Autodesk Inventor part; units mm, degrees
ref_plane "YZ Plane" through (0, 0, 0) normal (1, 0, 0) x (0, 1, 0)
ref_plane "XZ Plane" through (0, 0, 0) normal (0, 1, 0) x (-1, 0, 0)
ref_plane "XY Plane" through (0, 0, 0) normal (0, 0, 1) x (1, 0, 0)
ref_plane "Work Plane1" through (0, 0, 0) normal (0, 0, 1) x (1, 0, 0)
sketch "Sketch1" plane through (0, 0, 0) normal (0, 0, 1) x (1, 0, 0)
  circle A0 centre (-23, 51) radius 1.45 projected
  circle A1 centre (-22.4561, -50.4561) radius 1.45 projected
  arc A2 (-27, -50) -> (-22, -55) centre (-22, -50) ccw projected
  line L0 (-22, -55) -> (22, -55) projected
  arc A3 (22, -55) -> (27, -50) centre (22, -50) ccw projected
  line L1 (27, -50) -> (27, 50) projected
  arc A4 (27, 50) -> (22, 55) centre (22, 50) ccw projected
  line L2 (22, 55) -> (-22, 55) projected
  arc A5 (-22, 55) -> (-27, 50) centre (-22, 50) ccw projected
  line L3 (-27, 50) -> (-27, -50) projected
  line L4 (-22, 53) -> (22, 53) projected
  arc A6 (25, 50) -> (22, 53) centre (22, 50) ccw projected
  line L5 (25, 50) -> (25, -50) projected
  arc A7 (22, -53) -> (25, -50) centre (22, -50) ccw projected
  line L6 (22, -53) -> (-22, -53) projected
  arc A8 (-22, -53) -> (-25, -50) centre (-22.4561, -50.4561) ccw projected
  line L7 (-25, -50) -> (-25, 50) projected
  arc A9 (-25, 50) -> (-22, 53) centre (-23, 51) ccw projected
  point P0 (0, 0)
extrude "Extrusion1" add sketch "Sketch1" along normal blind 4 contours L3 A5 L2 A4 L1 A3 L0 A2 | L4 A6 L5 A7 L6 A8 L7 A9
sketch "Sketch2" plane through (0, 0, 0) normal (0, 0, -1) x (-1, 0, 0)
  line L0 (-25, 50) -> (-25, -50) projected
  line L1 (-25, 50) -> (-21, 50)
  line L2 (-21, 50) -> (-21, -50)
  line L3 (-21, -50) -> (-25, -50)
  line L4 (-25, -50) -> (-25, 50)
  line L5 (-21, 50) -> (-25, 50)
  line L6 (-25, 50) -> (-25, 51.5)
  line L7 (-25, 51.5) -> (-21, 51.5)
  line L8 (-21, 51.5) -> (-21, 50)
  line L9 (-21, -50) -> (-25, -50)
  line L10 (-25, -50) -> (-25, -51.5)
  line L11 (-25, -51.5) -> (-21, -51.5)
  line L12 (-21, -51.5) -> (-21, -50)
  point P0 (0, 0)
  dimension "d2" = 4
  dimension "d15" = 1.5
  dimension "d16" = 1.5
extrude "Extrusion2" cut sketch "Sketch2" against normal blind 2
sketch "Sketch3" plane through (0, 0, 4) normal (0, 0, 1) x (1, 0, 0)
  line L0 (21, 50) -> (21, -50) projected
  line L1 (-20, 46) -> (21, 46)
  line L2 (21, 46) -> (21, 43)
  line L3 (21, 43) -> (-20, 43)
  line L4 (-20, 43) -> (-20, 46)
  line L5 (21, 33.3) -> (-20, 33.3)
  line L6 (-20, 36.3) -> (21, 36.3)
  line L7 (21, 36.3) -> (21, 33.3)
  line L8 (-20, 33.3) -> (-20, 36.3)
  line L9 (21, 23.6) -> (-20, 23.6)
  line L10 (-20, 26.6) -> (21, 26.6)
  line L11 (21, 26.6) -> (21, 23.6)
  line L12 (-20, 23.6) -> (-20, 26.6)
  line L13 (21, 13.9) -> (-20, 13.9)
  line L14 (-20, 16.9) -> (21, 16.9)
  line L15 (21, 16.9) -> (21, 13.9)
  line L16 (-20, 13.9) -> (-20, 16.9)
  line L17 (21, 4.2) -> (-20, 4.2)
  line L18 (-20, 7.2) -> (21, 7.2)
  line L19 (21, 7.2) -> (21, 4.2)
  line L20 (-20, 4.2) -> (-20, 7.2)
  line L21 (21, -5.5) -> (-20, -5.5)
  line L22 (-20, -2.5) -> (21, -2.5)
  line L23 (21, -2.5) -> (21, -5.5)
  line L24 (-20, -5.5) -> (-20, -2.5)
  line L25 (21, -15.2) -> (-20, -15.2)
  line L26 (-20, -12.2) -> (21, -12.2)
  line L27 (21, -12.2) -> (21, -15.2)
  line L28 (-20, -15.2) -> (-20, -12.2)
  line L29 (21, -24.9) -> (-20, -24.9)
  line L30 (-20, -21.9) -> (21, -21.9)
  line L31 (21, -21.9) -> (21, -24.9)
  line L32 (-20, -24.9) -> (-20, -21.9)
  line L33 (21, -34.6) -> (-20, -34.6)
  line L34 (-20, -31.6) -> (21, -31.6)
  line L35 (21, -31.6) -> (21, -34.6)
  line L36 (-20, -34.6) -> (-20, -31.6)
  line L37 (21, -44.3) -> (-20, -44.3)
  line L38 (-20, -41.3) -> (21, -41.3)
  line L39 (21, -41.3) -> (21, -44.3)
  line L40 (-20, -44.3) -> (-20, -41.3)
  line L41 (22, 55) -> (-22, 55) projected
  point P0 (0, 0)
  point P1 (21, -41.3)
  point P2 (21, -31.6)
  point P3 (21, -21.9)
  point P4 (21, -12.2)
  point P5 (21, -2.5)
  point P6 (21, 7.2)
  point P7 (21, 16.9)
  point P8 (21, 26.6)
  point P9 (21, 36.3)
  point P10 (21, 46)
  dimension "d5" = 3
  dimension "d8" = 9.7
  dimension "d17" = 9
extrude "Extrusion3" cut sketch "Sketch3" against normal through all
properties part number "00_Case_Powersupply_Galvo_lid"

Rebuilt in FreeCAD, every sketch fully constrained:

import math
import FreeCAD as App
import Part
import Sketcher
from FreeCAD import Vector
Q = App.Units.Quantity

doc = App.newDocument("Part")
params = doc.addObject("Spreadsheet::Sheet", "Params")
for row, (alias, value) in enumerate([
    ("sketch1_radius", "5 mm"),
    ("sketch1_diameter", "2.9 mm"),
    ("sketch1_width", "44 mm"),
    ("sketch1_height", "100 mm"),
    ("pad1_length", "4 mm"),
    ("sketch2_width", "4 mm"),
    ("sketch2_height", "103 mm"),
    ("pocket1_length", "2 mm"),
    ("sketch3_height", "3 mm"),
    ("sketch3_width", "41 mm"),
], start=1):
    params.set(f"A{row}", alias)
    params.set(f"B{row}", "=" + value)
    params.setAlias(f"B{row}", alias)

body = doc.addObject("PartDesign::Body", "Body")

sketch1 = body.newObject("Sketcher::SketchObject", "Sketch")
sketch1.AttachmentSupport = (doc.getObject("XY_Plane"), [""])
sketch1.MapMode = "FlatFace"
sketch1.addGeometry([
    Part.LineSegment(Vector(-27, 50, 0), Vector(-27, -50, 0)),
    Part.ArcOfCircle(Part.Circle(Vector(-22, -50, 0), Vector(0, 0, 1), 5), math.radians(180), math.radians(270)),
    Part.LineSegment(Vector(-22, -55, 0), Vector(22, -55, 0)),
    Part.ArcOfCircle(Part.Circle(Vector(22, -50, 0), Vector(0, 0, 1), 5), math.radians(-90), math.radians(0)),
    Part.LineSegment(Vector(27, -50, 0), Vector(27, 50, 0)),
    Part.ArcOfCircle(Part.Circle(Vector(22, 50, 0), Vector(0, 0, 1), 5), math.radians(0), math.radians(90)),
    Part.LineSegment(Vector(22, 55, 0), Vector(-22, 55, 0)),
    Part.ArcOfCircle(Part.Circle(Vector(-22, 50, 0), Vector(0, 0, 1), 5), math.radians(90), math.radians(180)),
    Part.Circle(Vector(-22.5, -50.5, 0), Vector(0, 0, 1), 1.4),
    Part.Circle(Vector(-23, 51, 0), Vector(0, 0, 1), 1.4),
], False)
sketch1.addConstraint([
    Sketcher.Constraint("Tangent", 0, 2, 1, 1),
    Sketcher.Constraint("Tangent", 1, 2, 2, 1),
    Sketcher.Constraint("Tangent", 2, 2, 3, 1),
    Sketcher.Constraint("Tangent", 3, 2, 4, 1),
    Sketcher.Constraint("Tangent", 4, 2, 5, 1),
    Sketcher.Constraint("Tangent", 5, 2, 6, 1),
    Sketcher.Constraint("Tangent", 6, 2, 7, 1),
    Sketcher.Constraint("Tangent", 7, 2, 0, 1),
    Sketcher.Constraint("Vertical", 0),
    Sketcher.Constraint("Horizontal", 2),
    Sketcher.Constraint("Vertical", 4),
    Sketcher.Constraint("Horizontal", 6),
    Sketcher.Constraint("Equal", 1, 3),
    Sketcher.Constraint("Equal", 3, 5),
    Sketcher.Constraint("Equal", 5, 7),
    Sketcher.Constraint("Equal", 8, 9),
    Sketcher.Constraint("Symmetric", 1, 3, 5, 3, -1, 1),
    Sketcher.Constraint("Radius", 1, Q("5 mm")),
    Sketcher.Constraint("Diameter", 8, Q("2.9 mm")),
    Sketcher.Constraint("DistanceX", 2, 1, 2, 2, Q("44 mm")),
    Sketcher.Constraint("DistanceY", 0, 2, 0, 1, Q("100 mm")),
    Sketcher.Constraint("DistanceX", 9, 3, -1, 1, Q("23 mm")),
    Sketcher.Constraint("DistanceY", -1, 1, 9, 3, Q("51 mm")),
    Sketcher.Constraint("DistanceX", 8, 3, -1, 1, Q("22.456 mm")),
    Sketcher.Constraint("DistanceY", 8, 3, -1, 1, Q("50.456 mm")),
])
sketch1.setExpression("Constraints[17]", "Params.sketch1_radius")
sketch1.setExpression("Constraints[18]", "Params.sketch1_diameter")
sketch1.setExpression("Constraints[19]", "Params.sketch1_width")
sketch1.setExpression("Constraints[20]", "Params.sketch1_height")
pad1 = body.newObject("PartDesign::Pad", "Pad")
pad1.Profile = sketch1
pad1.setExpression("Length", "Params.pad1_length")

sketch2 = body.newObject("Sketcher::SketchObject", "Sketch001")
sketch2.AttachmentSupport = (doc.getObject("XY_Plane"), [""])
sketch2.MapMode = "FlatFace"
sketch2.addGeometry([
    Part.LineSegment(Vector(21, 51.5, 0), Vector(25, 51.5, 0)),
    Part.LineSegment(Vector(25, 51.5, 0), Vector(25, -51.5, 0)),
    Part.LineSegment(Vector(25, -51.5, 0), Vector(21, -51.5, 0)),
    Part.LineSegment(Vector(21, -51.5, 0), Vector(21, 51.5, 0)),
], False)
sketch2.addConstraint([
    Sketcher.Constraint("Coincident", 0, 2, 1, 1),
    Sketcher.Constraint("Coincident", 1, 2, 2, 1),
    Sketcher.Constraint("Coincident", 2, 2, 3, 1),
    Sketcher.Constraint("Coincident", 3, 2, 0, 1),
    Sketcher.Constraint("Horizontal", 0),
    Sketcher.Constraint("Vertical", 1),
    Sketcher.Constraint("Horizontal", 2),
    Sketcher.Constraint("Vertical", 3),
    Sketcher.Constraint("DistanceX", 0, 1, 0, 2, Q("4 mm")),
    Sketcher.Constraint("DistanceY", 1, 2, 1, 1, Q("103 mm")),
    Sketcher.Constraint("DistanceX", -1, 1, 0, 2, Q("25 mm")),
    Sketcher.Constraint("DistanceY", -1, 1, 0, 2, Q("51.5 mm")),
])
sketch2.setExpression("Constraints[8]", "Params.sketch2_width")
sketch2.setExpression("Constraints[9]", "Params.sketch2_height")
pocket1 = body.newObject("PartDesign::Pocket", "Pocket")
pocket1.Profile = sketch2
pocket1.setExpression("Length", "Params.pocket1_length")
pocket1.Reversed = True

sketch3 = body.newObject("Sketcher::SketchObject", "Sketch002")
sketch3.AttachmentSupport = (doc.getObject("XY_Plane"), [""])
sketch3.MapMode = "FlatFace"
sketch3.AttachmentOffset = App.Placement(Vector(0, 0, 4), App.Rotation())
sketch3.addGeometry([
    Part.LineSegment(Vector(21, -44.3, 0), Vector(21, -41.3, 0)),
    Part.LineSegment(Vector(21, -41.3, 0), Vector(-20, -41.3, 0)),
    Part.LineSegment(Vector(-20, -41.3, 0), Vector(-20, -44.3, 0)),
    Part.LineSegment(Vector(-20, -44.3, 0), Vector(21, -44.3, 0)),
    Part.LineSegment(Vector(21, -34.6, 0), Vector(21, -31.6, 0)),
    Part.LineSegment(Vector(21, -31.6, 0), Vector(-20, -31.6, 0)),
    Part.LineSegment(Vector(-20, -31.6, 0), Vector(-20, -34.6, 0)),
    Part.LineSegment(Vector(-20, -34.6, 0), Vector(21, -34.6, 0)),
    Part.LineSegment(Vector(21, -24.9, 0), Vector(21, -21.9, 0)),
    Part.LineSegment(Vector(21, -21.9, 0), Vector(-20, -21.9, 0)),
    Part.LineSegment(Vector(-20, -21.9, 0), Vector(-20, -24.9, 0)),
    Part.LineSegment(Vector(-20, -24.9, 0), Vector(21, -24.9, 0)),
    Part.LineSegment(Vector(21, -15.2, 0), Vector(21, -12.2, 0)),
    Part.LineSegment(Vector(21, -12.2, 0), Vector(-20, -12.2, 0)),
    Part.LineSegment(Vector(-20, -12.2, 0), Vector(-20, -15.2, 0)),
    Part.LineSegment(Vector(-20, -15.2, 0), Vector(21, -15.2, 0)),
    Part.LineSegment(Vector(21, -5.5, 0), Vector(21, -2.5, 0)),
    Part.LineSegment(Vector(21, -2.5, 0), Vector(-20, -2.5, 0)),
    Part.LineSegment(Vector(-20, -2.5, 0), Vector(-20, -5.5, 0)),
    Part.LineSegment(Vector(-20, -5.5, 0), Vector(21, -5.5, 0)),
    Part.LineSegment(Vector(21, 4.2, 0), Vector(21, 7.2, 0)),
    Part.LineSegment(Vector(21, 7.2, 0), Vector(-20, 7.2, 0)),
    Part.LineSegment(Vector(-20, 7.2, 0), Vector(-20, 4.2, 0)),
    Part.LineSegment(Vector(-20, 4.2, 0), Vector(21, 4.2, 0)),
    Part.LineSegment(Vector(21, 13.9, 0), Vector(21, 16.9, 0)),
    Part.LineSegment(Vector(21, 16.9, 0), Vector(-20, 16.9, 0)),
    Part.LineSegment(Vector(-20, 16.9, 0), Vector(-20, 13.9, 0)),
    Part.LineSegment(Vector(-20, 13.9, 0), Vector(21, 13.9, 0)),
    Part.LineSegment(Vector(21, 23.6, 0), Vector(21, 26.6, 0)),
    Part.LineSegment(Vector(21, 26.6, 0), Vector(-20, 26.6, 0)),
    Part.LineSegment(Vector(-20, 26.6, 0), Vector(-20, 23.6, 0)),
    Part.LineSegment(Vector(-20, 23.6, 0), Vector(21, 23.6, 0)),
    Part.LineSegment(Vector(21, 33.3, 0), Vector(21, 36.3, 0)),
    Part.LineSegment(Vector(21, 36.3, 0), Vector(-20, 36.3, 0)),
    Part.LineSegment(Vector(-20, 36.3, 0), Vector(-20, 33.3, 0)),
    Part.LineSegment(Vector(-20, 33.3, 0), Vector(21, 33.3, 0)),
    Part.LineSegment(Vector(21, 43, 0), Vector(21, 46, 0)),
    Part.LineSegment(Vector(21, 46, 0), Vector(-20, 46, 0)),
    Part.LineSegment(Vector(-20, 46, 0), Vector(-20, 43, 0)),
    Part.LineSegment(Vector(-20, 43, 0), Vector(21, 43, 0)),
], False)
sketch3.addConstraint([
    Sketcher.Constraint("Coincident", 0, 2, 1, 1),
    Sketcher.Constraint("Coincident", 1, 2, 2, 1),
    Sketcher.Constraint("Coincident", 2, 2, 3, 1),
    Sketcher.Constraint("Coincident", 3, 2, 0, 1),
    Sketcher.Constraint("Coincident", 4, 2, 5, 1),
    Sketcher.Constraint("Coincident", 5, 2, 6, 1),
    Sketcher.Constraint("Coincident", 6, 2, 7, 1),
    Sketcher.Constraint("Coincident", 7, 2, 4, 1),
    Sketcher.Constraint("Coincident", 8, 2, 9, 1),
    Sketcher.Constraint("Coincident", 9, 2, 10, 1),
    Sketcher.Constraint("Coincident", 10, 2, 11, 1),
    Sketcher.Constraint("Coincident", 11, 2, 8, 1),
    Sketcher.Constraint("Coincident", 12, 2, 13, 1),
    Sketcher.Constraint("Coincident", 13, 2, 14, 1),
    Sketcher.Constraint("Coincident", 14, 2, 15, 1),
    Sketcher.Constraint("Coincident", 15, 2, 12, 1),
    Sketcher.Constraint("Coincident", 16, 2, 17, 1),
    Sketcher.Constraint("Coincident", 17, 2, 18, 1),
    Sketcher.Constraint("Coincident", 18, 2, 19, 1),
    Sketcher.Constraint("Coincident", 19, 2, 16, 1),
    Sketcher.Constraint("Coincident", 20, 2, 21, 1),
    Sketcher.Constraint("Coincident", 21, 2, 22, 1),
    Sketcher.Constraint("Coincident", 22, 2, 23, 1),
    Sketcher.Constraint("Coincident", 23, 2, 20, 1),
    Sketcher.Constraint("Coincident", 24, 2, 25, 1),
    Sketcher.Constraint("Coincident", 25, 2, 26, 1),
    Sketcher.Constraint("Coincident", 26, 2, 27, 1),
    Sketcher.Constraint("Coincident", 27, 2, 24, 1),
    Sketcher.Constraint("Coincident", 28, 2, 29, 1),
    Sketcher.Constraint("Coincident", 29, 2, 30, 1),
    Sketcher.Constraint("Coincident", 30, 2, 31, 1),
    Sketcher.Constraint("Coincident", 31, 2, 28, 1),
    Sketcher.Constraint("Coincident", 32, 2, 33, 1),
    Sketcher.Constraint("Coincident", 33, 2, 34, 1),
    Sketcher.Constraint("Coincident", 34, 2, 35, 1),
    Sketcher.Constraint("Coincident", 35, 2, 32, 1),
    Sketcher.Constraint("Coincident", 36, 2, 37, 1),
    Sketcher.Constraint("Coincident", 37, 2, 38, 1),
    Sketcher.Constraint("Coincident", 38, 2, 39, 1),
    Sketcher.Constraint("Coincident", 39, 2, 36, 1),
    Sketcher.Constraint("Vertical", 0),
    Sketcher.Constraint("Horizontal", 1),
    Sketcher.Constraint("Vertical", 2),
    Sketcher.Constraint("Horizontal", 3),
    Sketcher.Constraint("Vertical", 4),
    Sketcher.Constraint("Horizontal", 5),
    Sketcher.Constraint("Vertical", 6),
    Sketcher.Constraint("Horizontal", 7),
    Sketcher.Constraint("Vertical", 8),
    Sketcher.Constraint("Horizontal", 9),
    Sketcher.Constraint("Vertical", 10),
    Sketcher.Constraint("Horizontal", 11),
    Sketcher.Constraint("Vertical", 12),
    Sketcher.Constraint("Horizontal", 13),
    Sketcher.Constraint("Vertical", 14),
    Sketcher.Constraint("Horizontal", 15),
    Sketcher.Constraint("Vertical", 16),
    Sketcher.Constraint("Horizontal", 17),
    Sketcher.Constraint("Vertical", 18),
    Sketcher.Constraint("Horizontal", 19),
    Sketcher.Constraint("Vertical", 20),
    Sketcher.Constraint("Horizontal", 21),
    Sketcher.Constraint("Vertical", 22),
    Sketcher.Constraint("Horizontal", 23),
    Sketcher.Constraint("Vertical", 24),
    Sketcher.Constraint("Horizontal", 25),
    Sketcher.Constraint("Vertical", 26),
    Sketcher.Constraint("Horizontal", 27),
    Sketcher.Constraint("Vertical", 28),
    Sketcher.Constraint("Horizontal", 29),
    Sketcher.Constraint("Vertical", 30),
    Sketcher.Constraint("Horizontal", 31),
    Sketcher.Constraint("Vertical", 32),
    Sketcher.Constraint("Horizontal", 33),
    Sketcher.Constraint("Vertical", 34),
    Sketcher.Constraint("Horizontal", 35),
    Sketcher.Constraint("Vertical", 36),
    Sketcher.Constraint("Horizontal", 37),
    Sketcher.Constraint("Vertical", 38),
    Sketcher.Constraint("Horizontal", 39),
    Sketcher.Constraint("Vertical", 3, 2, 4, 2),
    Sketcher.Constraint("Vertical", 2, 2, 5, 2),
    Sketcher.Constraint("Vertical", 7, 2, 8, 2),
    Sketcher.Constraint("Vertical", 6, 2, 9, 2),
    Sketcher.Constraint("Vertical", 11, 2, 12, 2),
    Sketcher.Constraint("Vertical", 10, 2, 13, 2),
    Sketcher.Constraint("Vertical", 15, 2, 16, 2),
    Sketcher.Constraint("Vertical", 14, 2, 17, 2),
    Sketcher.Constraint("Vertical", 19, 2, 20, 2),
    Sketcher.Constraint("Vertical", 18, 2, 21, 2),
    Sketcher.Constraint("Vertical", 23, 2, 24, 2),
    Sketcher.Constraint("Vertical", 22, 2, 25, 2),
    Sketcher.Constraint("Vertical", 27, 2, 28, 2),
    Sketcher.Constraint("Vertical", 26, 2, 29, 2),
    Sketcher.Constraint("Vertical", 31, 2, 32, 2),
    Sketcher.Constraint("Vertical", 30, 2, 33, 2),
    Sketcher.Constraint("Vertical", 35, 2, 36, 2),
    Sketcher.Constraint("Vertical", 34, 2, 37, 2),
    Sketcher.Constraint("Equal", 2, 4),
    Sketcher.Constraint("Equal", 6, 8),
    Sketcher.Constraint("Equal", 10, 12),
    Sketcher.Constraint("Equal", 14, 16),
    Sketcher.Constraint("Equal", 18, 20),
    Sketcher.Constraint("Equal", 22, 24),
    Sketcher.Constraint("Equal", 26, 28),
    Sketcher.Constraint("Equal", 30, 32),
    Sketcher.Constraint("Equal", 34, 36),
    Sketcher.Constraint("DistanceY", 0, 1, 0, 2, Q("3 mm")),
    Sketcher.Constraint("DistanceY", 0, 2, 4, 2, Q("9.7 mm")),
    Sketcher.Constraint("DistanceY", 4, 2, 8, 2, Q("9.7 mm")),
    Sketcher.Constraint("DistanceY", 8, 2, 12, 2, Q("9.7 mm")),
    Sketcher.Constraint("DistanceY", 12, 2, 16, 2, Q("9.7 mm")),
    Sketcher.Constraint("DistanceY", 16, 2, 20, 2, Q("9.7 mm")),
    Sketcher.Constraint("DistanceY", 20, 2, 24, 2, Q("9.7 mm")),
    Sketcher.Constraint("DistanceY", 24, 2, 28, 2, Q("9.7 mm")),
    Sketcher.Constraint("DistanceY", 28, 2, 32, 2, Q("9.7 mm")),
    Sketcher.Constraint("DistanceY", 32, 2, 36, 2, Q("9.7 mm")),
    Sketcher.Constraint("DistanceX", 1, 2, 1, 1, Q("41 mm")),
    Sketcher.Constraint("DistanceX", -1, 1, 0, 2, Q("21 mm")),
    Sketcher.Constraint("DistanceY", -1, 1, 36, 2, Q("46 mm")),
])
sketch3.setExpression("Constraints[107]", "Params.sketch3_height")
sketch3.setExpression("Constraints[117]", "Params.sketch3_width")
pocket2 = body.newObject("PartDesign::Pocket", "Pocket001")
pocket2.Profile = sketch3
pocket2.Type = "ThroughAll"

doc.recompute()
